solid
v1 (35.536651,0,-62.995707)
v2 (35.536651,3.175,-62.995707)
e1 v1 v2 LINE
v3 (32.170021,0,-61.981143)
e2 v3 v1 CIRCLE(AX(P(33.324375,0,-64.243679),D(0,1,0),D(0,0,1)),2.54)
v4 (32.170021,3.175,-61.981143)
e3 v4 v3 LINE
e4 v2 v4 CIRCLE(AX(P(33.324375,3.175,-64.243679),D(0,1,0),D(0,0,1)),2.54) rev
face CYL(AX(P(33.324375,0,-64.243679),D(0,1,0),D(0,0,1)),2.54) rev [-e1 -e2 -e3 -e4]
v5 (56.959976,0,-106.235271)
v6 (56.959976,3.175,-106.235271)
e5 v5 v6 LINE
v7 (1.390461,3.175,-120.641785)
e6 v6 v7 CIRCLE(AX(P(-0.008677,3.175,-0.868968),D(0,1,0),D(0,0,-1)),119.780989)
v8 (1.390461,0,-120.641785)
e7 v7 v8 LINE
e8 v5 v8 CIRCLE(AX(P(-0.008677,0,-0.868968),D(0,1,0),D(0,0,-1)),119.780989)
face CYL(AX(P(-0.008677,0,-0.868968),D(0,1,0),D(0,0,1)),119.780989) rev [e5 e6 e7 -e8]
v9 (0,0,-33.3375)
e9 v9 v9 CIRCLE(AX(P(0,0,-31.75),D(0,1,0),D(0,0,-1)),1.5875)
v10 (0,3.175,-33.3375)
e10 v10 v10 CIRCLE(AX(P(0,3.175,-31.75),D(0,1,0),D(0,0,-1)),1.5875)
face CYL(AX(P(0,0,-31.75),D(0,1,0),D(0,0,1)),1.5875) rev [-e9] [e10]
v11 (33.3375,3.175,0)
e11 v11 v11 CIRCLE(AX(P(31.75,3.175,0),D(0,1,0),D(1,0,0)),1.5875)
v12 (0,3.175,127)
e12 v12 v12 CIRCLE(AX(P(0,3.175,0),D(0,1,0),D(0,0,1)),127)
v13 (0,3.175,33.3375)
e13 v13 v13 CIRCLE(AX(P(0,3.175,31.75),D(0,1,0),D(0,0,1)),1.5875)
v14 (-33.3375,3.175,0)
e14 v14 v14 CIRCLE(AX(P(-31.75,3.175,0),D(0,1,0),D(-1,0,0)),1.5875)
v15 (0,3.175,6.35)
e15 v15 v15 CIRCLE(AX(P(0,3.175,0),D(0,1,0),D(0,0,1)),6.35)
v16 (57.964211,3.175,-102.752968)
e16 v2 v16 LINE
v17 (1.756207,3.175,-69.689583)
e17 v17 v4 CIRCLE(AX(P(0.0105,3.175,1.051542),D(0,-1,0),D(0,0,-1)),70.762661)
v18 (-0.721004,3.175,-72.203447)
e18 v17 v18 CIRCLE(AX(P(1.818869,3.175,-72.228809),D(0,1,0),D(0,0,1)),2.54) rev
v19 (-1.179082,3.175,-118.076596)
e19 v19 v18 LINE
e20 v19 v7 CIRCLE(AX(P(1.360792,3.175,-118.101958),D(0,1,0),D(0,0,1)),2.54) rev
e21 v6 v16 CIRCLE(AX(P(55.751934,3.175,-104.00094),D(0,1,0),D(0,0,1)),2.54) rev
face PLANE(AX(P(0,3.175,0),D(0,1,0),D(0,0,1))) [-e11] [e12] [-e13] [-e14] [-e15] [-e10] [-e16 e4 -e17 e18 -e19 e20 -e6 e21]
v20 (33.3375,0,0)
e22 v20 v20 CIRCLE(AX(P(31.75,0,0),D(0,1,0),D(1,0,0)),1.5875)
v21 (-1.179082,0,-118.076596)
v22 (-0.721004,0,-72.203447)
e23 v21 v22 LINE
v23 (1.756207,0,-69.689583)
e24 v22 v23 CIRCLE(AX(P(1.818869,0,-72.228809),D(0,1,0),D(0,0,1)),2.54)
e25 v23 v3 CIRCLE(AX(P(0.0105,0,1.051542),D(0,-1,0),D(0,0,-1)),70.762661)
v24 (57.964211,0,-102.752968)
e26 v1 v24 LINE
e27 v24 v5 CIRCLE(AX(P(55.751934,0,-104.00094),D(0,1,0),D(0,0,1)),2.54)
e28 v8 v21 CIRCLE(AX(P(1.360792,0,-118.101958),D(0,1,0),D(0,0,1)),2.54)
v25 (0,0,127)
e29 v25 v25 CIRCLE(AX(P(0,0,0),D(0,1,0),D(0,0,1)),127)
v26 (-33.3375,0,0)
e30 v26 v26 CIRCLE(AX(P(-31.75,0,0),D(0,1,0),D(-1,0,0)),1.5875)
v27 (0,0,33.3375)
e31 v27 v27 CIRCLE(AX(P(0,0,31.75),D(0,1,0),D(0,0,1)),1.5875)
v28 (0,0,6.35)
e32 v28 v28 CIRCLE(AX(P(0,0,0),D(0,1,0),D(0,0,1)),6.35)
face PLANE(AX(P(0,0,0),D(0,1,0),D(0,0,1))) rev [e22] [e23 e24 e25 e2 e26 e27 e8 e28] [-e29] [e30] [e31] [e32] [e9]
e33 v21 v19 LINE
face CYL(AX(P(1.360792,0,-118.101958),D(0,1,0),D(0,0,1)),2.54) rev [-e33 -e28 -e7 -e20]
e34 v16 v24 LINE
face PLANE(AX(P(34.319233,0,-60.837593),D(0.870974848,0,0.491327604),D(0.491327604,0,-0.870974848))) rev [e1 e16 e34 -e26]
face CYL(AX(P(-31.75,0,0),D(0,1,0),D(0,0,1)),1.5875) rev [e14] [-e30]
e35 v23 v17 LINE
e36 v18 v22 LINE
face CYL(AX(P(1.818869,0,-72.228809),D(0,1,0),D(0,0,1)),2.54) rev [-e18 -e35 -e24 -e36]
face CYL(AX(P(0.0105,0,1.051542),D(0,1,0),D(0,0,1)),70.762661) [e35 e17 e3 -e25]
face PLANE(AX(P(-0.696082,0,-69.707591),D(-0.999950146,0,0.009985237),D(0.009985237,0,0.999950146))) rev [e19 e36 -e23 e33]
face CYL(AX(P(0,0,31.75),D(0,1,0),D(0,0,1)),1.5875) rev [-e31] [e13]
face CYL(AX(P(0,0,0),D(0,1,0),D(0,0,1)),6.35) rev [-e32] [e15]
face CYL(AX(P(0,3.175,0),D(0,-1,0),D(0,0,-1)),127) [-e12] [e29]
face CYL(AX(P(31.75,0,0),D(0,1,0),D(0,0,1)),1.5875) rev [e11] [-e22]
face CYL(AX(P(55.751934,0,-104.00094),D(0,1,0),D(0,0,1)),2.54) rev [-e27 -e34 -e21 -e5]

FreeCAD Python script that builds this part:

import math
import FreeCAD as App
import Part
import Sketcher
Q = App.Units.Quantity


def edges_at(feature, points):
    """Names of the edges that pass closest to the given points."""
    edges = feature.Shape.Edges
    near = lambda p: min(range(len(edges)), key=lambda i: edges[i].distToShape(Part.Vertex(*p))[0])
    return sorted({f"Edge{near(p) + 1}" for p in points})

doc = App.newDocument("Part")
body = doc.addObject("PartDesign::Body", "Body")

# Sketch on XZ plane
sketch1 = body.newObject("Sketcher::SketchObject", "Sketch")
sketch1.AttachmentSupport = (doc.getObject("XZ_Plane"), [""])
sketch1.MapMode = "FlatFace"
sketch1.addGeometry(Part.Circle(App.Vector(0, 0, 0), App.Vector(0, 0, 1), 127), False)
sketch1.addConstraint(Sketcher.Constraint("Coincident", 0, 3, -1, 1))
sketch1.addConstraint(Sketcher.Constraint("Diameter", 0, Q("10 in")))
pad1 = body.newObject("PartDesign::Pad", "Pad")
pad1.Profile = sketch1
pad1.Length = Q("0.125 in")
pad1.Reversed = True

# Sketch on XZ plane
sketch2 = body.newObject("Sketcher::SketchObject", "Sketch001")
sketch2.AttachmentSupport = (doc.getObject("XZ_Plane"), [""])
sketch2.MapMode = "FlatFace"
sketch2.AttachmentOffset = App.Placement(App.Vector(0, 0, -0.125 * 25.4), App.Rotation())
sketch2.addGeometry(Part.Circle(App.Vector(0, 0, 0), App.Vector(0, 0, 1), 6), False)
sketch2.addConstraint(Sketcher.Constraint("Coincident", 0, 3, -1, 1))
sketch2.addConstraint(Sketcher.Constraint("Diameter", 0, Q("0.5 in")))
pocket1 = body.newObject("PartDesign::Pocket", "Pocket")
pocket1.Profile = sketch2
pocket1.Type = "ThroughAll"
pocket1.Reversed = True

# Sketch on XZ plane
sketch3 = body.newObject("Sketcher::SketchObject", "Sketch002")
sketch3.AttachmentSupport = (doc.getObject("XZ_Plane"), [""])
sketch3.MapMode = "FlatFace"
sketch3.AttachmentOffset = App.Placement(App.Vector(0, 0, -0.125 * 25.4), App.Rotation())
sketch3.addGeometry(Part.LineSegment(App.Vector(-1, -121, 0), App.Vector(-1, -70, 0)), False)
sketch3.addGeometry(Part.ArcOfCircle(Part.Circle(App.Vector(0, 1, 0), App.Vector(0, 0, 1), 71), math.radians(-91), math.radians(-61)), False)
sketch3.addGeometry(Part.LineSegment(App.Vector(34, -61, 0), App.Vector(59, -105, 0)), False)
sketch3.addGeometry(Part.ArcOfCircle(Part.Circle(App.Vector(0, -1, 0), App.Vector(0, 0, 1), 120), math.radians(-91), math.radians(-60)), False)
sketch3.addConstraint(Sketcher.Constraint("Coincident", 0, 2, 1, 1))
sketch3.addConstraint(Sketcher.Constraint("Coincident", 1, 2, 2, 1))
sketch3.addConstraint(Sketcher.Constraint("Coincident", 2, 2, 3, 2))
sketch3.addConstraint(Sketcher.Constraint("Coincident", 3, 1, 0, 1))
sketch3.addConstraint(Sketcher.Constraint("Radius", 1, 70.762661))
sketch3.addConstraint(Sketcher.Constraint("Radius", 3, 119.780989))
sketch3.addConstraint(Sketcher.Constraint("DistanceY", 2, 2, 3, 3, Q("4.0988999 in")))
sketch3.addConstraint(Sketcher.Constraint("DistanceX", -1, 1, 1, 3, 0.0105))
sketch3.addConstraint(Sketcher.Constraint("DistanceY", 0, 2, 1, 2, 8.869998))
sketch3.addConstraint(Sketcher.Constraint("DistanceY", -1, 1, 1, 3, 1.051542))
sketch3.addConstraint(Sketcher.Constraint("DistanceX", 0, 2, -1, 1, 0.696082))
sketch3.addConstraint(Sketcher.Constraint("DistanceX", 3, 1, -1, 1, 1.204719))
sketch3.addConstraint(Sketcher.Constraint("DistanceY", 3, 3, 1, 3, 1.92051))
sketch3.addConstraint(Sketcher.Constraint("DistanceX", 3, 3, 1, 2, 34.32791))
pocket2 = body.newObject("PartDesign::Pocket", "Pocket001")
pocket2.Profile = sketch3
pocket2.Type = "ThroughAll"
pocket2.Reversed = True

# Sketch on XZ plane
sketch4 = body.newObject("Sketcher::SketchObject", "Sketch003")
sketch4.AttachmentSupport = (doc.getObject("XZ_Plane"), [""])
sketch4.MapMode = "FlatFace"
sketch4.AttachmentOffset = App.Placement(App.Vector(0, 0, -0.125 * 25.4), App.Rotation())
sketch4.addGeometry(Part.Circle(App.Vector(0, 31.8, 0), App.Vector(0, 0, 1), 1.6), False)
sketch4.addConstraint(Sketcher.Constraint("PointOnObject", 0, 3, -2))
sketch4.addConstraint(Sketcher.Constraint("Diameter", 0, Q("0.125 in")))
sketch4.addConstraint(Sketcher.Constraint("DistanceY", -1, 1, 0, 3, Q("1.25 in")))
pocket3 = body.newObject("PartDesign::Pocket", "Pocket002")
pocket3.Profile = sketch4
pocket3.Type = "ThroughAll"
pocket3.Reversed = True
doc.recompute()

polarpattern = body.newObject("PartDesign::PolarPattern", "PolarPattern")
polarpattern.Originals = [pocket3]
polarpattern.Axis = (doc.getObject("Y_Axis"), [""])
polarpattern.Angle = 360
polarpattern.Occurrences = 4
body.Tip = polarpattern
doc.recompute()

fillet = body.newObject("PartDesign::Fillet", "Fillet")
fillet.Base = (polarpattern, edges_at(polarpattern, [
    (34.319, 1.587, -60.838),
    (-0.696, 1.587, -69.708),
    (-1.205, 1.587, -120.644),
    (59.221, 1.587, -104.981),
]))
fillet.Radius = Q("0.1 in")

doc.recompute()
